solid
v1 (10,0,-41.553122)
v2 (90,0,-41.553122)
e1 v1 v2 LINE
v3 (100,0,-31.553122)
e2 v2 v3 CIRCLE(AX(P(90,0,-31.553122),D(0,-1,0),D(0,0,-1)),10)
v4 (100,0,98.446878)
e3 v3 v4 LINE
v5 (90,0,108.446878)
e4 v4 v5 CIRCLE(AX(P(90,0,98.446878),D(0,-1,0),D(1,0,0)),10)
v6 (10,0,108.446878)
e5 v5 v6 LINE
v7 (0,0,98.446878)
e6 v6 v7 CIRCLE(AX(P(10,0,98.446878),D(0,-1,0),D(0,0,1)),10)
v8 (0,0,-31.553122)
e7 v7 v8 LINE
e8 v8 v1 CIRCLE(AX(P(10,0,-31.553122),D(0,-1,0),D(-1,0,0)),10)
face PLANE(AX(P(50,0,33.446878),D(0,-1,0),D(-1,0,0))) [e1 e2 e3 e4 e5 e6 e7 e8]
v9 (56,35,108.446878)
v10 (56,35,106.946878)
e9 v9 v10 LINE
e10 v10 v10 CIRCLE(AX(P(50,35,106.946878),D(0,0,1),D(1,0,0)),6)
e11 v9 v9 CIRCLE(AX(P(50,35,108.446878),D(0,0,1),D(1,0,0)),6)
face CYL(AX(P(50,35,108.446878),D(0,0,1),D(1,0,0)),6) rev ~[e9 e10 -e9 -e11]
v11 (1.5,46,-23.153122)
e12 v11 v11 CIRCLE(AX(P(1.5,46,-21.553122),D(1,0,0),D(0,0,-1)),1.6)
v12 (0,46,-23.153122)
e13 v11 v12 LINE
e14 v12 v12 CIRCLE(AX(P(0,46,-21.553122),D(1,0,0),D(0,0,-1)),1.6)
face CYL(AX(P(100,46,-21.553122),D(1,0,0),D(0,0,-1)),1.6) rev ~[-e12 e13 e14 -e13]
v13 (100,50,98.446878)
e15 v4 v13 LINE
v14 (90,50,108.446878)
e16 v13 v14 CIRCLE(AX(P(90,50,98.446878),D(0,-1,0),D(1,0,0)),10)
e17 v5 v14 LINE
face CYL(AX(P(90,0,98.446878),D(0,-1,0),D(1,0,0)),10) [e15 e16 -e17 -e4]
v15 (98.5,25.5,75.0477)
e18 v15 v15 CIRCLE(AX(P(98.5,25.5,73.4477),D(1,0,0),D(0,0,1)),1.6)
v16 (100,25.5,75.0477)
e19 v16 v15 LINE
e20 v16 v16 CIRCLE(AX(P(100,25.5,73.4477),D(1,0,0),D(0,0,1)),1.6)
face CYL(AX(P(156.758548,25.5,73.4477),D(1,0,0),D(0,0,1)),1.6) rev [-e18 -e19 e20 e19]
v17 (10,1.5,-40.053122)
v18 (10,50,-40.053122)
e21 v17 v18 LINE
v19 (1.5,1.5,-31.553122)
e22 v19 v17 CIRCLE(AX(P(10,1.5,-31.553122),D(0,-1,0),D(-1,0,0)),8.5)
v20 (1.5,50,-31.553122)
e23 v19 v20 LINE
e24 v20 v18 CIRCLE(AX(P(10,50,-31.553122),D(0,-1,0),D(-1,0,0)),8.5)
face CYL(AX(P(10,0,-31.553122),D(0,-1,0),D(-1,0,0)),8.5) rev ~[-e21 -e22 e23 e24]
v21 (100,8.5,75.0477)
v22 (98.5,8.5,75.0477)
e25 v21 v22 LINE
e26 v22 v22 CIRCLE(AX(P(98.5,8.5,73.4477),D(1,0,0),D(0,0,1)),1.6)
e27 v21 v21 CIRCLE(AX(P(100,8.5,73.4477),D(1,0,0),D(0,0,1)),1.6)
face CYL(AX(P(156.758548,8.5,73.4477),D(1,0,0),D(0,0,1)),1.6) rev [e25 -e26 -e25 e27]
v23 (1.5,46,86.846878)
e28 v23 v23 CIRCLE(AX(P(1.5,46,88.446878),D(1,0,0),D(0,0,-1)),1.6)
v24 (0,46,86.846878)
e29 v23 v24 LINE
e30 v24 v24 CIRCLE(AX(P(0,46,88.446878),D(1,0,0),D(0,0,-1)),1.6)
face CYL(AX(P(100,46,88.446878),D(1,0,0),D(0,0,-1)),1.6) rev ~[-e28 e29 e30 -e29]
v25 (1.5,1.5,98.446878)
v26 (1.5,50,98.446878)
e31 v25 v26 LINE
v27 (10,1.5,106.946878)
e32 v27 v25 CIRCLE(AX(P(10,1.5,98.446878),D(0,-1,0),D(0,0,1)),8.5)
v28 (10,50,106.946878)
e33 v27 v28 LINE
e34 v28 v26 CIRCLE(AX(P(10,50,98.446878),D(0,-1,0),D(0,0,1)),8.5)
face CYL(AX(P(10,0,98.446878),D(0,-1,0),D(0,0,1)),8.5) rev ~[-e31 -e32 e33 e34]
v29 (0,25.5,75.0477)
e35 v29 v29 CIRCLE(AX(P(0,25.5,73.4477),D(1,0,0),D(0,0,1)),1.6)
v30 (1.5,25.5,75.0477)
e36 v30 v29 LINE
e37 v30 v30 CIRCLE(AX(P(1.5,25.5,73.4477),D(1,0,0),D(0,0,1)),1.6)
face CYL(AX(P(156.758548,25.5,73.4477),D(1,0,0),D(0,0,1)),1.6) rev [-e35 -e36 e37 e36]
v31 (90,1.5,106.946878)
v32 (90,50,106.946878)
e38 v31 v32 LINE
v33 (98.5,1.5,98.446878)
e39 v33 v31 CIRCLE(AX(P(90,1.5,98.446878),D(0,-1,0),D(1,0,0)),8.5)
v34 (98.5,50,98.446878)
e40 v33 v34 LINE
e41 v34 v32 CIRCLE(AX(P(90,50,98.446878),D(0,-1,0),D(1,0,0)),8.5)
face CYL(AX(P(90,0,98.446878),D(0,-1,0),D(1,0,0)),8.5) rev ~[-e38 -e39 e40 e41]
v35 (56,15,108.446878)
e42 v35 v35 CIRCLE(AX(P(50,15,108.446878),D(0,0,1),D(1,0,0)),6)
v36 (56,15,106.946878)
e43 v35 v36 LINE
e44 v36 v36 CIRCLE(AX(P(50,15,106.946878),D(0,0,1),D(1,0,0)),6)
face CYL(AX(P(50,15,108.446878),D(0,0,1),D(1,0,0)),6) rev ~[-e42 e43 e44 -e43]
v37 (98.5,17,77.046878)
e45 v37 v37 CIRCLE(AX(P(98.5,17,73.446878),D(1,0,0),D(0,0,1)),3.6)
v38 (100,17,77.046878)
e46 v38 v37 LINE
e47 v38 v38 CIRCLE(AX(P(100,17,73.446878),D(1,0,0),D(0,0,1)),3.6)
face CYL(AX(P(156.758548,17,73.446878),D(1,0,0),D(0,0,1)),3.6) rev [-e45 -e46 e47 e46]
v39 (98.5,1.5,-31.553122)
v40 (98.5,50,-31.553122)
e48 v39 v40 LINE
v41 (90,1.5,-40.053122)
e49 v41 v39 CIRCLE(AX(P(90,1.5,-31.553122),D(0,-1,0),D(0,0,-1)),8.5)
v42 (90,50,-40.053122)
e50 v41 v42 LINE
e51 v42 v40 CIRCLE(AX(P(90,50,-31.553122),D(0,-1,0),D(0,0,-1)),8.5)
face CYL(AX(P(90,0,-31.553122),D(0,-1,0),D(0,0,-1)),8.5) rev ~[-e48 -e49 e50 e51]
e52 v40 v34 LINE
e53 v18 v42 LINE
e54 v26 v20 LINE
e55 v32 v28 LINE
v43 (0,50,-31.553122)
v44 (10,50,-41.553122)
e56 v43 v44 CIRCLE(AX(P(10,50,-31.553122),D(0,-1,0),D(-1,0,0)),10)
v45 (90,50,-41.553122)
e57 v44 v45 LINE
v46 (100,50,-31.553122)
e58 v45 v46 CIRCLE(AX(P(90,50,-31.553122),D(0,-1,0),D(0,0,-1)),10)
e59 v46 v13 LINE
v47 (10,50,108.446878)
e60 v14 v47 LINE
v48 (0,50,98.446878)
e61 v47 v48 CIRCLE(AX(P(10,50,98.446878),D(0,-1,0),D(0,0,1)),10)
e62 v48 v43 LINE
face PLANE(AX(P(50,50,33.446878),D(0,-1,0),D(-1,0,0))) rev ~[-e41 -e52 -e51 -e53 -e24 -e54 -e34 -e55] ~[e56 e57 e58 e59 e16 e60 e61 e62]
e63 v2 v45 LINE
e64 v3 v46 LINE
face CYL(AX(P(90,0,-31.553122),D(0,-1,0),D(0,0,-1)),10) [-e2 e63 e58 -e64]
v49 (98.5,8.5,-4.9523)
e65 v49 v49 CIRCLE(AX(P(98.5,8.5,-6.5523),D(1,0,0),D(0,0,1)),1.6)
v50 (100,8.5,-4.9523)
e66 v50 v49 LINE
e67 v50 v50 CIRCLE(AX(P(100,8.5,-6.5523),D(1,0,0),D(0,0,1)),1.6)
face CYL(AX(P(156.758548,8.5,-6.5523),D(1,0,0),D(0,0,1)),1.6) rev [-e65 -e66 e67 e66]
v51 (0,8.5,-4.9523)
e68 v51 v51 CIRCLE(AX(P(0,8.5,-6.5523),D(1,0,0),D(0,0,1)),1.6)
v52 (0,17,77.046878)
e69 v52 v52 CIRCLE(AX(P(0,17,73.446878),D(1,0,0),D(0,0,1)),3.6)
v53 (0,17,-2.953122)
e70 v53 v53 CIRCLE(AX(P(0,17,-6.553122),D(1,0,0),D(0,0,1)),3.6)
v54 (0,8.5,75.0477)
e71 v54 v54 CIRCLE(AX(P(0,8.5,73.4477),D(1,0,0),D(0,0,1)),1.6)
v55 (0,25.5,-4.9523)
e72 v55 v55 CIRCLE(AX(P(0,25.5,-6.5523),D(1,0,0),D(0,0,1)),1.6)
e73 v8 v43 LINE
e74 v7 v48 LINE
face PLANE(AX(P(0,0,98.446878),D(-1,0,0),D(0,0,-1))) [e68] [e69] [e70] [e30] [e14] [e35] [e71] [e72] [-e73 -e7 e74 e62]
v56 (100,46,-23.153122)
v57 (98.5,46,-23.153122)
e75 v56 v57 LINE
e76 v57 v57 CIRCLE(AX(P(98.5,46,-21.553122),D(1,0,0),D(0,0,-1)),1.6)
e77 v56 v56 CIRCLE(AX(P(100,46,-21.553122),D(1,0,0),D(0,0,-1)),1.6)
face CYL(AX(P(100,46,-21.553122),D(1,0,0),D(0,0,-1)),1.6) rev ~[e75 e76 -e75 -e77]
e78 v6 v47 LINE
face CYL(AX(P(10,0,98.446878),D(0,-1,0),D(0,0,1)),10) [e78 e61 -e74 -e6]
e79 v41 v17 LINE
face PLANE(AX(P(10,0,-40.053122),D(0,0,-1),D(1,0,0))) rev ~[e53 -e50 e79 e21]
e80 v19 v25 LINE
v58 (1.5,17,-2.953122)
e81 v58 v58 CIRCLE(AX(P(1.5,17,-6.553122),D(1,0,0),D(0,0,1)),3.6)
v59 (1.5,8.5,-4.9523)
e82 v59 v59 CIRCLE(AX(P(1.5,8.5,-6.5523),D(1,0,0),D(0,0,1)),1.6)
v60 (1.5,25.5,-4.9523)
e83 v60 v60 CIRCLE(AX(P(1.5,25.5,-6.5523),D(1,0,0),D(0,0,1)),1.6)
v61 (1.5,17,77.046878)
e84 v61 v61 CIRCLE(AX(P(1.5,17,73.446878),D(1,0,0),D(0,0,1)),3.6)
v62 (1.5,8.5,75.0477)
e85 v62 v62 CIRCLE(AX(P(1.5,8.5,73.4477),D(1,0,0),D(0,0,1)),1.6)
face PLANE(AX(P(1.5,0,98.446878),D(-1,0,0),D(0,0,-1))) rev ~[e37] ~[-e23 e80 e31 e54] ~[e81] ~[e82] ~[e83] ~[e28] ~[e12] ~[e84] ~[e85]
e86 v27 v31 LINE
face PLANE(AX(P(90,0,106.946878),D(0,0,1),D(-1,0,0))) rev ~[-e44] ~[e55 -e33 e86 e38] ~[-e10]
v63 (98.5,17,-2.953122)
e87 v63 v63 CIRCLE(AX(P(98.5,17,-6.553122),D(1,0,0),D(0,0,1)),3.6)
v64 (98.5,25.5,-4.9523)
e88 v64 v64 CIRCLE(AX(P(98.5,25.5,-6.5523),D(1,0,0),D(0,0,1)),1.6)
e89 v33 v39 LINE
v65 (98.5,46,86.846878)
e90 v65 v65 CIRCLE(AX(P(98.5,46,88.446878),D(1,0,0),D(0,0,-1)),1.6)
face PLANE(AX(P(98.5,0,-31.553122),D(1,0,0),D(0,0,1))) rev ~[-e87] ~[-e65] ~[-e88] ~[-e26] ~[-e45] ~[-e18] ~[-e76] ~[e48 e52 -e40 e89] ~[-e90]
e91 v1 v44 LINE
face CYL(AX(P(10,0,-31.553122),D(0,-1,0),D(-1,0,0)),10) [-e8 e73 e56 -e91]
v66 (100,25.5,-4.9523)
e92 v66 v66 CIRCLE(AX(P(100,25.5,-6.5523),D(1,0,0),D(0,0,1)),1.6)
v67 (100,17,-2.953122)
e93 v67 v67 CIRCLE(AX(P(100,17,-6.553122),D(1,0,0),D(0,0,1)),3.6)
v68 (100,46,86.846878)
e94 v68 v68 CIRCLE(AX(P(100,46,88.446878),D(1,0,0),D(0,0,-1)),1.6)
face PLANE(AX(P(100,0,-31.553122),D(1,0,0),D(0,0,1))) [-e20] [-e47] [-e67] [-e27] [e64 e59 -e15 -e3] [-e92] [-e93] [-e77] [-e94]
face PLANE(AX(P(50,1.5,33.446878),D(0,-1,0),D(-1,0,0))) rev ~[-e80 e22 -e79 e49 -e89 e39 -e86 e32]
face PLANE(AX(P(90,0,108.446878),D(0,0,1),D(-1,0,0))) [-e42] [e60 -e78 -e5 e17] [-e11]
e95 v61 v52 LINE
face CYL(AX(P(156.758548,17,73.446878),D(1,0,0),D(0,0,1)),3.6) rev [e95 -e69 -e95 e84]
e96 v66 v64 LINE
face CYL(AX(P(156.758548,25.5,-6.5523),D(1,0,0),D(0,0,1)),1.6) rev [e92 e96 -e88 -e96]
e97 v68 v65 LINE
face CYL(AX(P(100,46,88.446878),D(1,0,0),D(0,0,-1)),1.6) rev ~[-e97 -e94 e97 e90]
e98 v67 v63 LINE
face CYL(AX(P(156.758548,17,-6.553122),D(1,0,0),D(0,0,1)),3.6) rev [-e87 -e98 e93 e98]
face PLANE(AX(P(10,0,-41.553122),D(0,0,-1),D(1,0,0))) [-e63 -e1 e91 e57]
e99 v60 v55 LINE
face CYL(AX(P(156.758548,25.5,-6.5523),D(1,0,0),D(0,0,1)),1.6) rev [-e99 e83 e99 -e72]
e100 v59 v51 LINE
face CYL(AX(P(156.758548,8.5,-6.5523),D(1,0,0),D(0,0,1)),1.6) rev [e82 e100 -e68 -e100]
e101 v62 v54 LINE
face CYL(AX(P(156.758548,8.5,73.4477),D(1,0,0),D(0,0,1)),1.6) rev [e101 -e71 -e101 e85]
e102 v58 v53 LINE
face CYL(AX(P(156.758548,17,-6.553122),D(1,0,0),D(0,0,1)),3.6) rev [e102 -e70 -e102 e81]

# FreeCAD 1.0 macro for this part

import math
import FreeCAD as App
import Part
import Sketcher
from FreeCAD import Vector
Q = App.Units.Quantity


def faces_at(feature, points):
    """Names of the faces that lie closest to the given points."""
    faces = feature.Shape.Faces
    near = lambda p: min(range(len(faces)), key=lambda i: faces[i].distToShape(Part.Vertex(*p))[0])
    return sorted({f"Face{near(p) + 1}" for p in points})

doc = App.newDocument("Part")
body = doc.addObject("PartDesign::Body", "Body")

# Sketch on XZ plane
sketch1 = doc.addObject("Sketcher::SketchObject", "Sketch")
body.addObject(sketch1)
sketch1.AttachmentSupport = (doc.XZ_Plane, [""])
sketch1.MapMode = "FlatFace"
sketch1.addGeometry(Part.LineSegment(Vector(90, -42, 0), Vector(10, -42, 0)), False)
sketch1.addGeometry(Part.ArcOfCircle(Part.Circle(Vector(10, -32, 0), Vector(0, 0, 1), 10), math.radians(180), math.radians(270)), False)
sketch1.addGeometry(Part.LineSegment(Vector(0, -32, 0), Vector(0, 98, 0)), False)
sketch1.addGeometry(Part.ArcOfCircle(Part.Circle(Vector(10, 98, 0), Vector(0, 0, 1), 10), math.radians(90), math.radians(180)), False)
sketch1.addGeometry(Part.LineSegment(Vector(10, 108, 0), Vector(90, 108, 0)), False)
sketch1.addGeometry(Part.ArcOfCircle(Part.Circle(Vector(90, 98, 0), Vector(0, 0, 1), 10), math.radians(0), math.radians(90)), False)
sketch1.addGeometry(Part.LineSegment(Vector(100, 98, 0), Vector(100, -32, 0)), False)
sketch1.addGeometry(Part.ArcOfCircle(Part.Circle(Vector(90, -32, 0), Vector(0, 0, 1), 10), math.radians(-90), math.radians(0)), False)
sketch1.addConstraint(Sketcher.Constraint("Tangent", 0, 2, 1, 2))
sketch1.addConstraint(Sketcher.Constraint("Tangent", 1, 1, 2, 1))
sketch1.addConstraint(Sketcher.Constraint("Tangent", 2, 2, 3, 2))
sketch1.addConstraint(Sketcher.Constraint("Tangent", 3, 1, 4, 1))
sketch1.addConstraint(Sketcher.Constraint("Tangent", 4, 2, 5, 2))
sketch1.addConstraint(Sketcher.Constraint("Tangent", 5, 1, 6, 1))
sketch1.addConstraint(Sketcher.Constraint("Tangent", 6, 2, 7, 2))
sketch1.addConstraint(Sketcher.Constraint("Tangent", 7, 1, 0, 1))
sketch1.addConstraint(Sketcher.Constraint("Horizontal", 0))
sketch1.addConstraint(Sketcher.Constraint("Vertical", 2))
sketch1.addConstraint(Sketcher.Constraint("Horizontal", 4))
sketch1.addConstraint(Sketcher.Constraint("Vertical", 6))
sketch1.addConstraint(Sketcher.Constraint("Equal", 1, 3))
sketch1.addConstraint(Sketcher.Constraint("Equal", 3, 5))
sketch1.addConstraint(Sketcher.Constraint("Equal", 5, 7))
sketch1.addConstraint(Sketcher.Constraint("PointOnObject", 1, 1, -2))
sketch1.addConstraint(Sketcher.Constraint("Radius", 1, Q("10 mm")))
sketch1.addConstraint(Sketcher.Constraint("DistanceX", 0, 2, 0, 1, Q("80 mm")))
sketch1.addConstraint(Sketcher.Constraint("DistanceY", 2, 1, 2, 2, Q("130 mm")))
sketch1.addConstraint(Sketcher.Constraint("DistanceY", 1, 3, -1, 1, Q("31.553122 mm")))
pad1 = doc.addObject("PartDesign::Pad", "Pad")
body.addObject(pad1)
pad1.Profile = sketch1
pad1.Length = 50
pad1.Reversed = True
doc.recompute()

thickness = doc.addObject("PartDesign::Thickness", "Thickness")
body.addObject(thickness)
thickness.Base = (pad1, faces_at(pad1, [(50, 50, 33.447)]))
thickness.Value = 1.5
thickness.Reversed = True
thickness.Join = "Intersection"

# Sketch on YZ plane
sketch2 = doc.addObject("Sketcher::SketchObject", "Sketch001")
body.addObject(sketch2)
sketch2.AttachmentSupport = (doc.YZ_Plane, [""])
sketch2.MapMode = "FlatFace"
sketch2.addGeometry(Part.Circle(Vector(17, -6.6, 0), Vector(0, 0, 1), 3.6), False)
sketch2.addGeometry(Part.Circle(Vector(17, 73.4, 0), Vector(0, 0, 1), 3.6), False)
sketch2.addGeometry(Part.Circle(Vector(25.5, -6.6, 0), Vector(0, 0, 1), 1.6), False)
sketch2.addGeometry(Part.Circle(Vector(8.5, -6.6, 0), Vector(0, 0, 1), 1.6), False)
sketch2.addGeometry(Part.Circle(Vector(25.5, 73.4, 0), Vector(0, 0, 1), 1.6), False)
sketch2.addGeometry(Part.Circle(Vector(8.5, 73.4, 0), Vector(0, 0, 1), 1.6), False)
sketch2.addConstraint(Sketcher.Constraint("Equal", 0, 1))
sketch2.addConstraint(Sketcher.Constraint("Equal", 2, 3))
sketch2.addConstraint(Sketcher.Constraint("Equal", 3, 4))
sketch2.addConstraint(Sketcher.Constraint("Equal", 4, 5))
sketch2.addConstraint(Sketcher.Constraint("Horizontal", 2, 3, 3, 3))
sketch2.addConstraint(Sketcher.Constraint("Horizontal", 4, 3, 5, 3))
sketch2.addConstraint(Sketcher.Constraint("Vertical", 0, 3, 1, 3))
sketch2.addConstraint(Sketcher.Constraint("Vertical", 2, 3, 4, 3))
sketch2.addConstraint(Sketcher.Constraint("Vertical", 3, 3, 5, 3))
sketch2.addConstraint(Sketcher.Constraint("Diameter", 0, Q("7.2 mm")))
sketch2.addConstraint(Sketcher.Constraint("Diameter", 2, Q("3.2 mm")))
sketch2.addConstraint(Sketcher.Constraint("DistanceX", -1, 1, 0, 3, Q("17 mm")))
sketch2.addConstraint(Sketcher.Constraint("DistanceY", 0, 3, 1, 3, Q("80 mm")))
sketch2.addConstraint(Sketcher.Constraint("DistanceX", 3, 3, 2, 3, Q("17 mm")))
sketch2.addConstraint(Sketcher.Constraint("DistanceY", 2, 3, 4, 3, Q("80 mm")))
sketch2.addConstraint(Sketcher.Constraint("DistanceX", -1, 1, 2, 3, Q("25.5 mm")))
sketch2.addConstraint(Sketcher.Constraint("DistanceY", 2, 3, -1, 1, Q("6.5523 mm")))
sketch2.addConstraint(Sketcher.Constraint("DistanceY", 0, 3, -1, 1, Q("6.553122 mm")))
pocket1 = doc.addObject("PartDesign::Pocket", "Pocket")
body.addObject(pocket1)
pocket1.Profile = sketch2
pocket1.Type = "ThroughAll"
pocket1.Midplane = True

# Sketch on XY plane
sketch3 = doc.addObject("Sketcher::SketchObject", "Sketch002")
body.addObject(sketch3)
sketch3.AttachmentSupport = (doc.XY_Plane, [""])
sketch3.MapMode = "FlatFace"
sketch3.AttachmentOffset = App.Placement(Vector(0, 0, 108.446878), App.Rotation())
sketch3.addGeometry(Part.Circle(Vector(50, 35, 0), Vector(0, 0, 1), 6), False)
sketch3.addConstraint(Sketcher.Constraint("Diameter", 0, Q("12 mm")))
sketch3.addConstraint(Sketcher.Constraint("DistanceX", -1, 1, 0, 3, Q("50 mm")))
sketch3.addConstraint(Sketcher.Constraint("DistanceY", -1, 1, 0, 3, Q("35 mm")))
pocket2 = doc.addObject("PartDesign::Pocket", "Pocket001")
body.addObject(pocket2)
pocket2.Profile = sketch3
pocket2.Type = "UpToFirst"

# Sketch on XY plane
sketch4 = doc.addObject("Sketcher::SketchObject", "Sketch003")
body.addObject(sketch4)
sketch4.AttachmentSupport = (doc.XY_Plane, [""])
sketch4.MapMode = "FlatFace"
sketch4.AttachmentOffset = App.Placement(Vector(0, 0, 108.446878), App.Rotation())
sketch4.addGeometry(Part.Circle(Vector(50, 15, 0), Vector(0, 0, 1), 6), False)
sketch4.addConstraint(Sketcher.Constraint("Diameter", 0, Q("12 mm")))
sketch4.addConstraint(Sketcher.Constraint("DistanceX", -1, 1, 0, 3, Q("50 mm")))
sketch4.addConstraint(Sketcher.Constraint("DistanceY", -1, 1, 0, 3, Q("15 mm")))
pocket3 = doc.addObject("PartDesign::Pocket", "Pocket002")
body.addObject(pocket3)
pocket3.Profile = sketch4
pocket3.Type = "UpToFirst"

# Sketch on YZ plane
sketch5 = doc.addObject("Sketcher::SketchObject", "Sketch004")
body.addObject(sketch5)
sketch5.AttachmentSupport = (doc.YZ_Plane, [""])
sketch5.MapMode = "FlatFace"
sketch5.AttachmentOffset = App.Placement(Vector(0, 0, 100), App.Rotation())
sketch5.addGeometry(Part.Circle(Vector(46, 88.4, 0), Vector(0, 0, 1), 1.6), False)
sketch5.addGeometry(Part.Circle(Vector(46, -21.6, 0), Vector(0, 0, 1), 1.6), False)
sketch5.addConstraint(Sketcher.Constraint("Equal", 0, 1))
sketch5.addConstraint(Sketcher.Constraint("Vertical", 0, 3, 1, 3))
sketch5.addConstraint(Sketcher.Constraint("Diameter", 0, Q("3.2 mm")))
sketch5.addConstraint(Sketcher.Constraint("DistanceX", -1, 1, 0, 3, Q("46 mm")))
sketch5.addConstraint(Sketcher.Constraint("DistanceY", 1, 3, 0, 3, Q("110 mm")))
sketch5.addConstraint(Sketcher.Constraint("DistanceY", -1, 1, 0, 3, Q("88.446878 mm")))
pocket4 = doc.addObject("PartDesign::Pocket", "Pocket003")
body.addObject(pocket4)
pocket4.Profile = sketch5
pocket4.Type = "ThroughAll"

doc.recompute()
